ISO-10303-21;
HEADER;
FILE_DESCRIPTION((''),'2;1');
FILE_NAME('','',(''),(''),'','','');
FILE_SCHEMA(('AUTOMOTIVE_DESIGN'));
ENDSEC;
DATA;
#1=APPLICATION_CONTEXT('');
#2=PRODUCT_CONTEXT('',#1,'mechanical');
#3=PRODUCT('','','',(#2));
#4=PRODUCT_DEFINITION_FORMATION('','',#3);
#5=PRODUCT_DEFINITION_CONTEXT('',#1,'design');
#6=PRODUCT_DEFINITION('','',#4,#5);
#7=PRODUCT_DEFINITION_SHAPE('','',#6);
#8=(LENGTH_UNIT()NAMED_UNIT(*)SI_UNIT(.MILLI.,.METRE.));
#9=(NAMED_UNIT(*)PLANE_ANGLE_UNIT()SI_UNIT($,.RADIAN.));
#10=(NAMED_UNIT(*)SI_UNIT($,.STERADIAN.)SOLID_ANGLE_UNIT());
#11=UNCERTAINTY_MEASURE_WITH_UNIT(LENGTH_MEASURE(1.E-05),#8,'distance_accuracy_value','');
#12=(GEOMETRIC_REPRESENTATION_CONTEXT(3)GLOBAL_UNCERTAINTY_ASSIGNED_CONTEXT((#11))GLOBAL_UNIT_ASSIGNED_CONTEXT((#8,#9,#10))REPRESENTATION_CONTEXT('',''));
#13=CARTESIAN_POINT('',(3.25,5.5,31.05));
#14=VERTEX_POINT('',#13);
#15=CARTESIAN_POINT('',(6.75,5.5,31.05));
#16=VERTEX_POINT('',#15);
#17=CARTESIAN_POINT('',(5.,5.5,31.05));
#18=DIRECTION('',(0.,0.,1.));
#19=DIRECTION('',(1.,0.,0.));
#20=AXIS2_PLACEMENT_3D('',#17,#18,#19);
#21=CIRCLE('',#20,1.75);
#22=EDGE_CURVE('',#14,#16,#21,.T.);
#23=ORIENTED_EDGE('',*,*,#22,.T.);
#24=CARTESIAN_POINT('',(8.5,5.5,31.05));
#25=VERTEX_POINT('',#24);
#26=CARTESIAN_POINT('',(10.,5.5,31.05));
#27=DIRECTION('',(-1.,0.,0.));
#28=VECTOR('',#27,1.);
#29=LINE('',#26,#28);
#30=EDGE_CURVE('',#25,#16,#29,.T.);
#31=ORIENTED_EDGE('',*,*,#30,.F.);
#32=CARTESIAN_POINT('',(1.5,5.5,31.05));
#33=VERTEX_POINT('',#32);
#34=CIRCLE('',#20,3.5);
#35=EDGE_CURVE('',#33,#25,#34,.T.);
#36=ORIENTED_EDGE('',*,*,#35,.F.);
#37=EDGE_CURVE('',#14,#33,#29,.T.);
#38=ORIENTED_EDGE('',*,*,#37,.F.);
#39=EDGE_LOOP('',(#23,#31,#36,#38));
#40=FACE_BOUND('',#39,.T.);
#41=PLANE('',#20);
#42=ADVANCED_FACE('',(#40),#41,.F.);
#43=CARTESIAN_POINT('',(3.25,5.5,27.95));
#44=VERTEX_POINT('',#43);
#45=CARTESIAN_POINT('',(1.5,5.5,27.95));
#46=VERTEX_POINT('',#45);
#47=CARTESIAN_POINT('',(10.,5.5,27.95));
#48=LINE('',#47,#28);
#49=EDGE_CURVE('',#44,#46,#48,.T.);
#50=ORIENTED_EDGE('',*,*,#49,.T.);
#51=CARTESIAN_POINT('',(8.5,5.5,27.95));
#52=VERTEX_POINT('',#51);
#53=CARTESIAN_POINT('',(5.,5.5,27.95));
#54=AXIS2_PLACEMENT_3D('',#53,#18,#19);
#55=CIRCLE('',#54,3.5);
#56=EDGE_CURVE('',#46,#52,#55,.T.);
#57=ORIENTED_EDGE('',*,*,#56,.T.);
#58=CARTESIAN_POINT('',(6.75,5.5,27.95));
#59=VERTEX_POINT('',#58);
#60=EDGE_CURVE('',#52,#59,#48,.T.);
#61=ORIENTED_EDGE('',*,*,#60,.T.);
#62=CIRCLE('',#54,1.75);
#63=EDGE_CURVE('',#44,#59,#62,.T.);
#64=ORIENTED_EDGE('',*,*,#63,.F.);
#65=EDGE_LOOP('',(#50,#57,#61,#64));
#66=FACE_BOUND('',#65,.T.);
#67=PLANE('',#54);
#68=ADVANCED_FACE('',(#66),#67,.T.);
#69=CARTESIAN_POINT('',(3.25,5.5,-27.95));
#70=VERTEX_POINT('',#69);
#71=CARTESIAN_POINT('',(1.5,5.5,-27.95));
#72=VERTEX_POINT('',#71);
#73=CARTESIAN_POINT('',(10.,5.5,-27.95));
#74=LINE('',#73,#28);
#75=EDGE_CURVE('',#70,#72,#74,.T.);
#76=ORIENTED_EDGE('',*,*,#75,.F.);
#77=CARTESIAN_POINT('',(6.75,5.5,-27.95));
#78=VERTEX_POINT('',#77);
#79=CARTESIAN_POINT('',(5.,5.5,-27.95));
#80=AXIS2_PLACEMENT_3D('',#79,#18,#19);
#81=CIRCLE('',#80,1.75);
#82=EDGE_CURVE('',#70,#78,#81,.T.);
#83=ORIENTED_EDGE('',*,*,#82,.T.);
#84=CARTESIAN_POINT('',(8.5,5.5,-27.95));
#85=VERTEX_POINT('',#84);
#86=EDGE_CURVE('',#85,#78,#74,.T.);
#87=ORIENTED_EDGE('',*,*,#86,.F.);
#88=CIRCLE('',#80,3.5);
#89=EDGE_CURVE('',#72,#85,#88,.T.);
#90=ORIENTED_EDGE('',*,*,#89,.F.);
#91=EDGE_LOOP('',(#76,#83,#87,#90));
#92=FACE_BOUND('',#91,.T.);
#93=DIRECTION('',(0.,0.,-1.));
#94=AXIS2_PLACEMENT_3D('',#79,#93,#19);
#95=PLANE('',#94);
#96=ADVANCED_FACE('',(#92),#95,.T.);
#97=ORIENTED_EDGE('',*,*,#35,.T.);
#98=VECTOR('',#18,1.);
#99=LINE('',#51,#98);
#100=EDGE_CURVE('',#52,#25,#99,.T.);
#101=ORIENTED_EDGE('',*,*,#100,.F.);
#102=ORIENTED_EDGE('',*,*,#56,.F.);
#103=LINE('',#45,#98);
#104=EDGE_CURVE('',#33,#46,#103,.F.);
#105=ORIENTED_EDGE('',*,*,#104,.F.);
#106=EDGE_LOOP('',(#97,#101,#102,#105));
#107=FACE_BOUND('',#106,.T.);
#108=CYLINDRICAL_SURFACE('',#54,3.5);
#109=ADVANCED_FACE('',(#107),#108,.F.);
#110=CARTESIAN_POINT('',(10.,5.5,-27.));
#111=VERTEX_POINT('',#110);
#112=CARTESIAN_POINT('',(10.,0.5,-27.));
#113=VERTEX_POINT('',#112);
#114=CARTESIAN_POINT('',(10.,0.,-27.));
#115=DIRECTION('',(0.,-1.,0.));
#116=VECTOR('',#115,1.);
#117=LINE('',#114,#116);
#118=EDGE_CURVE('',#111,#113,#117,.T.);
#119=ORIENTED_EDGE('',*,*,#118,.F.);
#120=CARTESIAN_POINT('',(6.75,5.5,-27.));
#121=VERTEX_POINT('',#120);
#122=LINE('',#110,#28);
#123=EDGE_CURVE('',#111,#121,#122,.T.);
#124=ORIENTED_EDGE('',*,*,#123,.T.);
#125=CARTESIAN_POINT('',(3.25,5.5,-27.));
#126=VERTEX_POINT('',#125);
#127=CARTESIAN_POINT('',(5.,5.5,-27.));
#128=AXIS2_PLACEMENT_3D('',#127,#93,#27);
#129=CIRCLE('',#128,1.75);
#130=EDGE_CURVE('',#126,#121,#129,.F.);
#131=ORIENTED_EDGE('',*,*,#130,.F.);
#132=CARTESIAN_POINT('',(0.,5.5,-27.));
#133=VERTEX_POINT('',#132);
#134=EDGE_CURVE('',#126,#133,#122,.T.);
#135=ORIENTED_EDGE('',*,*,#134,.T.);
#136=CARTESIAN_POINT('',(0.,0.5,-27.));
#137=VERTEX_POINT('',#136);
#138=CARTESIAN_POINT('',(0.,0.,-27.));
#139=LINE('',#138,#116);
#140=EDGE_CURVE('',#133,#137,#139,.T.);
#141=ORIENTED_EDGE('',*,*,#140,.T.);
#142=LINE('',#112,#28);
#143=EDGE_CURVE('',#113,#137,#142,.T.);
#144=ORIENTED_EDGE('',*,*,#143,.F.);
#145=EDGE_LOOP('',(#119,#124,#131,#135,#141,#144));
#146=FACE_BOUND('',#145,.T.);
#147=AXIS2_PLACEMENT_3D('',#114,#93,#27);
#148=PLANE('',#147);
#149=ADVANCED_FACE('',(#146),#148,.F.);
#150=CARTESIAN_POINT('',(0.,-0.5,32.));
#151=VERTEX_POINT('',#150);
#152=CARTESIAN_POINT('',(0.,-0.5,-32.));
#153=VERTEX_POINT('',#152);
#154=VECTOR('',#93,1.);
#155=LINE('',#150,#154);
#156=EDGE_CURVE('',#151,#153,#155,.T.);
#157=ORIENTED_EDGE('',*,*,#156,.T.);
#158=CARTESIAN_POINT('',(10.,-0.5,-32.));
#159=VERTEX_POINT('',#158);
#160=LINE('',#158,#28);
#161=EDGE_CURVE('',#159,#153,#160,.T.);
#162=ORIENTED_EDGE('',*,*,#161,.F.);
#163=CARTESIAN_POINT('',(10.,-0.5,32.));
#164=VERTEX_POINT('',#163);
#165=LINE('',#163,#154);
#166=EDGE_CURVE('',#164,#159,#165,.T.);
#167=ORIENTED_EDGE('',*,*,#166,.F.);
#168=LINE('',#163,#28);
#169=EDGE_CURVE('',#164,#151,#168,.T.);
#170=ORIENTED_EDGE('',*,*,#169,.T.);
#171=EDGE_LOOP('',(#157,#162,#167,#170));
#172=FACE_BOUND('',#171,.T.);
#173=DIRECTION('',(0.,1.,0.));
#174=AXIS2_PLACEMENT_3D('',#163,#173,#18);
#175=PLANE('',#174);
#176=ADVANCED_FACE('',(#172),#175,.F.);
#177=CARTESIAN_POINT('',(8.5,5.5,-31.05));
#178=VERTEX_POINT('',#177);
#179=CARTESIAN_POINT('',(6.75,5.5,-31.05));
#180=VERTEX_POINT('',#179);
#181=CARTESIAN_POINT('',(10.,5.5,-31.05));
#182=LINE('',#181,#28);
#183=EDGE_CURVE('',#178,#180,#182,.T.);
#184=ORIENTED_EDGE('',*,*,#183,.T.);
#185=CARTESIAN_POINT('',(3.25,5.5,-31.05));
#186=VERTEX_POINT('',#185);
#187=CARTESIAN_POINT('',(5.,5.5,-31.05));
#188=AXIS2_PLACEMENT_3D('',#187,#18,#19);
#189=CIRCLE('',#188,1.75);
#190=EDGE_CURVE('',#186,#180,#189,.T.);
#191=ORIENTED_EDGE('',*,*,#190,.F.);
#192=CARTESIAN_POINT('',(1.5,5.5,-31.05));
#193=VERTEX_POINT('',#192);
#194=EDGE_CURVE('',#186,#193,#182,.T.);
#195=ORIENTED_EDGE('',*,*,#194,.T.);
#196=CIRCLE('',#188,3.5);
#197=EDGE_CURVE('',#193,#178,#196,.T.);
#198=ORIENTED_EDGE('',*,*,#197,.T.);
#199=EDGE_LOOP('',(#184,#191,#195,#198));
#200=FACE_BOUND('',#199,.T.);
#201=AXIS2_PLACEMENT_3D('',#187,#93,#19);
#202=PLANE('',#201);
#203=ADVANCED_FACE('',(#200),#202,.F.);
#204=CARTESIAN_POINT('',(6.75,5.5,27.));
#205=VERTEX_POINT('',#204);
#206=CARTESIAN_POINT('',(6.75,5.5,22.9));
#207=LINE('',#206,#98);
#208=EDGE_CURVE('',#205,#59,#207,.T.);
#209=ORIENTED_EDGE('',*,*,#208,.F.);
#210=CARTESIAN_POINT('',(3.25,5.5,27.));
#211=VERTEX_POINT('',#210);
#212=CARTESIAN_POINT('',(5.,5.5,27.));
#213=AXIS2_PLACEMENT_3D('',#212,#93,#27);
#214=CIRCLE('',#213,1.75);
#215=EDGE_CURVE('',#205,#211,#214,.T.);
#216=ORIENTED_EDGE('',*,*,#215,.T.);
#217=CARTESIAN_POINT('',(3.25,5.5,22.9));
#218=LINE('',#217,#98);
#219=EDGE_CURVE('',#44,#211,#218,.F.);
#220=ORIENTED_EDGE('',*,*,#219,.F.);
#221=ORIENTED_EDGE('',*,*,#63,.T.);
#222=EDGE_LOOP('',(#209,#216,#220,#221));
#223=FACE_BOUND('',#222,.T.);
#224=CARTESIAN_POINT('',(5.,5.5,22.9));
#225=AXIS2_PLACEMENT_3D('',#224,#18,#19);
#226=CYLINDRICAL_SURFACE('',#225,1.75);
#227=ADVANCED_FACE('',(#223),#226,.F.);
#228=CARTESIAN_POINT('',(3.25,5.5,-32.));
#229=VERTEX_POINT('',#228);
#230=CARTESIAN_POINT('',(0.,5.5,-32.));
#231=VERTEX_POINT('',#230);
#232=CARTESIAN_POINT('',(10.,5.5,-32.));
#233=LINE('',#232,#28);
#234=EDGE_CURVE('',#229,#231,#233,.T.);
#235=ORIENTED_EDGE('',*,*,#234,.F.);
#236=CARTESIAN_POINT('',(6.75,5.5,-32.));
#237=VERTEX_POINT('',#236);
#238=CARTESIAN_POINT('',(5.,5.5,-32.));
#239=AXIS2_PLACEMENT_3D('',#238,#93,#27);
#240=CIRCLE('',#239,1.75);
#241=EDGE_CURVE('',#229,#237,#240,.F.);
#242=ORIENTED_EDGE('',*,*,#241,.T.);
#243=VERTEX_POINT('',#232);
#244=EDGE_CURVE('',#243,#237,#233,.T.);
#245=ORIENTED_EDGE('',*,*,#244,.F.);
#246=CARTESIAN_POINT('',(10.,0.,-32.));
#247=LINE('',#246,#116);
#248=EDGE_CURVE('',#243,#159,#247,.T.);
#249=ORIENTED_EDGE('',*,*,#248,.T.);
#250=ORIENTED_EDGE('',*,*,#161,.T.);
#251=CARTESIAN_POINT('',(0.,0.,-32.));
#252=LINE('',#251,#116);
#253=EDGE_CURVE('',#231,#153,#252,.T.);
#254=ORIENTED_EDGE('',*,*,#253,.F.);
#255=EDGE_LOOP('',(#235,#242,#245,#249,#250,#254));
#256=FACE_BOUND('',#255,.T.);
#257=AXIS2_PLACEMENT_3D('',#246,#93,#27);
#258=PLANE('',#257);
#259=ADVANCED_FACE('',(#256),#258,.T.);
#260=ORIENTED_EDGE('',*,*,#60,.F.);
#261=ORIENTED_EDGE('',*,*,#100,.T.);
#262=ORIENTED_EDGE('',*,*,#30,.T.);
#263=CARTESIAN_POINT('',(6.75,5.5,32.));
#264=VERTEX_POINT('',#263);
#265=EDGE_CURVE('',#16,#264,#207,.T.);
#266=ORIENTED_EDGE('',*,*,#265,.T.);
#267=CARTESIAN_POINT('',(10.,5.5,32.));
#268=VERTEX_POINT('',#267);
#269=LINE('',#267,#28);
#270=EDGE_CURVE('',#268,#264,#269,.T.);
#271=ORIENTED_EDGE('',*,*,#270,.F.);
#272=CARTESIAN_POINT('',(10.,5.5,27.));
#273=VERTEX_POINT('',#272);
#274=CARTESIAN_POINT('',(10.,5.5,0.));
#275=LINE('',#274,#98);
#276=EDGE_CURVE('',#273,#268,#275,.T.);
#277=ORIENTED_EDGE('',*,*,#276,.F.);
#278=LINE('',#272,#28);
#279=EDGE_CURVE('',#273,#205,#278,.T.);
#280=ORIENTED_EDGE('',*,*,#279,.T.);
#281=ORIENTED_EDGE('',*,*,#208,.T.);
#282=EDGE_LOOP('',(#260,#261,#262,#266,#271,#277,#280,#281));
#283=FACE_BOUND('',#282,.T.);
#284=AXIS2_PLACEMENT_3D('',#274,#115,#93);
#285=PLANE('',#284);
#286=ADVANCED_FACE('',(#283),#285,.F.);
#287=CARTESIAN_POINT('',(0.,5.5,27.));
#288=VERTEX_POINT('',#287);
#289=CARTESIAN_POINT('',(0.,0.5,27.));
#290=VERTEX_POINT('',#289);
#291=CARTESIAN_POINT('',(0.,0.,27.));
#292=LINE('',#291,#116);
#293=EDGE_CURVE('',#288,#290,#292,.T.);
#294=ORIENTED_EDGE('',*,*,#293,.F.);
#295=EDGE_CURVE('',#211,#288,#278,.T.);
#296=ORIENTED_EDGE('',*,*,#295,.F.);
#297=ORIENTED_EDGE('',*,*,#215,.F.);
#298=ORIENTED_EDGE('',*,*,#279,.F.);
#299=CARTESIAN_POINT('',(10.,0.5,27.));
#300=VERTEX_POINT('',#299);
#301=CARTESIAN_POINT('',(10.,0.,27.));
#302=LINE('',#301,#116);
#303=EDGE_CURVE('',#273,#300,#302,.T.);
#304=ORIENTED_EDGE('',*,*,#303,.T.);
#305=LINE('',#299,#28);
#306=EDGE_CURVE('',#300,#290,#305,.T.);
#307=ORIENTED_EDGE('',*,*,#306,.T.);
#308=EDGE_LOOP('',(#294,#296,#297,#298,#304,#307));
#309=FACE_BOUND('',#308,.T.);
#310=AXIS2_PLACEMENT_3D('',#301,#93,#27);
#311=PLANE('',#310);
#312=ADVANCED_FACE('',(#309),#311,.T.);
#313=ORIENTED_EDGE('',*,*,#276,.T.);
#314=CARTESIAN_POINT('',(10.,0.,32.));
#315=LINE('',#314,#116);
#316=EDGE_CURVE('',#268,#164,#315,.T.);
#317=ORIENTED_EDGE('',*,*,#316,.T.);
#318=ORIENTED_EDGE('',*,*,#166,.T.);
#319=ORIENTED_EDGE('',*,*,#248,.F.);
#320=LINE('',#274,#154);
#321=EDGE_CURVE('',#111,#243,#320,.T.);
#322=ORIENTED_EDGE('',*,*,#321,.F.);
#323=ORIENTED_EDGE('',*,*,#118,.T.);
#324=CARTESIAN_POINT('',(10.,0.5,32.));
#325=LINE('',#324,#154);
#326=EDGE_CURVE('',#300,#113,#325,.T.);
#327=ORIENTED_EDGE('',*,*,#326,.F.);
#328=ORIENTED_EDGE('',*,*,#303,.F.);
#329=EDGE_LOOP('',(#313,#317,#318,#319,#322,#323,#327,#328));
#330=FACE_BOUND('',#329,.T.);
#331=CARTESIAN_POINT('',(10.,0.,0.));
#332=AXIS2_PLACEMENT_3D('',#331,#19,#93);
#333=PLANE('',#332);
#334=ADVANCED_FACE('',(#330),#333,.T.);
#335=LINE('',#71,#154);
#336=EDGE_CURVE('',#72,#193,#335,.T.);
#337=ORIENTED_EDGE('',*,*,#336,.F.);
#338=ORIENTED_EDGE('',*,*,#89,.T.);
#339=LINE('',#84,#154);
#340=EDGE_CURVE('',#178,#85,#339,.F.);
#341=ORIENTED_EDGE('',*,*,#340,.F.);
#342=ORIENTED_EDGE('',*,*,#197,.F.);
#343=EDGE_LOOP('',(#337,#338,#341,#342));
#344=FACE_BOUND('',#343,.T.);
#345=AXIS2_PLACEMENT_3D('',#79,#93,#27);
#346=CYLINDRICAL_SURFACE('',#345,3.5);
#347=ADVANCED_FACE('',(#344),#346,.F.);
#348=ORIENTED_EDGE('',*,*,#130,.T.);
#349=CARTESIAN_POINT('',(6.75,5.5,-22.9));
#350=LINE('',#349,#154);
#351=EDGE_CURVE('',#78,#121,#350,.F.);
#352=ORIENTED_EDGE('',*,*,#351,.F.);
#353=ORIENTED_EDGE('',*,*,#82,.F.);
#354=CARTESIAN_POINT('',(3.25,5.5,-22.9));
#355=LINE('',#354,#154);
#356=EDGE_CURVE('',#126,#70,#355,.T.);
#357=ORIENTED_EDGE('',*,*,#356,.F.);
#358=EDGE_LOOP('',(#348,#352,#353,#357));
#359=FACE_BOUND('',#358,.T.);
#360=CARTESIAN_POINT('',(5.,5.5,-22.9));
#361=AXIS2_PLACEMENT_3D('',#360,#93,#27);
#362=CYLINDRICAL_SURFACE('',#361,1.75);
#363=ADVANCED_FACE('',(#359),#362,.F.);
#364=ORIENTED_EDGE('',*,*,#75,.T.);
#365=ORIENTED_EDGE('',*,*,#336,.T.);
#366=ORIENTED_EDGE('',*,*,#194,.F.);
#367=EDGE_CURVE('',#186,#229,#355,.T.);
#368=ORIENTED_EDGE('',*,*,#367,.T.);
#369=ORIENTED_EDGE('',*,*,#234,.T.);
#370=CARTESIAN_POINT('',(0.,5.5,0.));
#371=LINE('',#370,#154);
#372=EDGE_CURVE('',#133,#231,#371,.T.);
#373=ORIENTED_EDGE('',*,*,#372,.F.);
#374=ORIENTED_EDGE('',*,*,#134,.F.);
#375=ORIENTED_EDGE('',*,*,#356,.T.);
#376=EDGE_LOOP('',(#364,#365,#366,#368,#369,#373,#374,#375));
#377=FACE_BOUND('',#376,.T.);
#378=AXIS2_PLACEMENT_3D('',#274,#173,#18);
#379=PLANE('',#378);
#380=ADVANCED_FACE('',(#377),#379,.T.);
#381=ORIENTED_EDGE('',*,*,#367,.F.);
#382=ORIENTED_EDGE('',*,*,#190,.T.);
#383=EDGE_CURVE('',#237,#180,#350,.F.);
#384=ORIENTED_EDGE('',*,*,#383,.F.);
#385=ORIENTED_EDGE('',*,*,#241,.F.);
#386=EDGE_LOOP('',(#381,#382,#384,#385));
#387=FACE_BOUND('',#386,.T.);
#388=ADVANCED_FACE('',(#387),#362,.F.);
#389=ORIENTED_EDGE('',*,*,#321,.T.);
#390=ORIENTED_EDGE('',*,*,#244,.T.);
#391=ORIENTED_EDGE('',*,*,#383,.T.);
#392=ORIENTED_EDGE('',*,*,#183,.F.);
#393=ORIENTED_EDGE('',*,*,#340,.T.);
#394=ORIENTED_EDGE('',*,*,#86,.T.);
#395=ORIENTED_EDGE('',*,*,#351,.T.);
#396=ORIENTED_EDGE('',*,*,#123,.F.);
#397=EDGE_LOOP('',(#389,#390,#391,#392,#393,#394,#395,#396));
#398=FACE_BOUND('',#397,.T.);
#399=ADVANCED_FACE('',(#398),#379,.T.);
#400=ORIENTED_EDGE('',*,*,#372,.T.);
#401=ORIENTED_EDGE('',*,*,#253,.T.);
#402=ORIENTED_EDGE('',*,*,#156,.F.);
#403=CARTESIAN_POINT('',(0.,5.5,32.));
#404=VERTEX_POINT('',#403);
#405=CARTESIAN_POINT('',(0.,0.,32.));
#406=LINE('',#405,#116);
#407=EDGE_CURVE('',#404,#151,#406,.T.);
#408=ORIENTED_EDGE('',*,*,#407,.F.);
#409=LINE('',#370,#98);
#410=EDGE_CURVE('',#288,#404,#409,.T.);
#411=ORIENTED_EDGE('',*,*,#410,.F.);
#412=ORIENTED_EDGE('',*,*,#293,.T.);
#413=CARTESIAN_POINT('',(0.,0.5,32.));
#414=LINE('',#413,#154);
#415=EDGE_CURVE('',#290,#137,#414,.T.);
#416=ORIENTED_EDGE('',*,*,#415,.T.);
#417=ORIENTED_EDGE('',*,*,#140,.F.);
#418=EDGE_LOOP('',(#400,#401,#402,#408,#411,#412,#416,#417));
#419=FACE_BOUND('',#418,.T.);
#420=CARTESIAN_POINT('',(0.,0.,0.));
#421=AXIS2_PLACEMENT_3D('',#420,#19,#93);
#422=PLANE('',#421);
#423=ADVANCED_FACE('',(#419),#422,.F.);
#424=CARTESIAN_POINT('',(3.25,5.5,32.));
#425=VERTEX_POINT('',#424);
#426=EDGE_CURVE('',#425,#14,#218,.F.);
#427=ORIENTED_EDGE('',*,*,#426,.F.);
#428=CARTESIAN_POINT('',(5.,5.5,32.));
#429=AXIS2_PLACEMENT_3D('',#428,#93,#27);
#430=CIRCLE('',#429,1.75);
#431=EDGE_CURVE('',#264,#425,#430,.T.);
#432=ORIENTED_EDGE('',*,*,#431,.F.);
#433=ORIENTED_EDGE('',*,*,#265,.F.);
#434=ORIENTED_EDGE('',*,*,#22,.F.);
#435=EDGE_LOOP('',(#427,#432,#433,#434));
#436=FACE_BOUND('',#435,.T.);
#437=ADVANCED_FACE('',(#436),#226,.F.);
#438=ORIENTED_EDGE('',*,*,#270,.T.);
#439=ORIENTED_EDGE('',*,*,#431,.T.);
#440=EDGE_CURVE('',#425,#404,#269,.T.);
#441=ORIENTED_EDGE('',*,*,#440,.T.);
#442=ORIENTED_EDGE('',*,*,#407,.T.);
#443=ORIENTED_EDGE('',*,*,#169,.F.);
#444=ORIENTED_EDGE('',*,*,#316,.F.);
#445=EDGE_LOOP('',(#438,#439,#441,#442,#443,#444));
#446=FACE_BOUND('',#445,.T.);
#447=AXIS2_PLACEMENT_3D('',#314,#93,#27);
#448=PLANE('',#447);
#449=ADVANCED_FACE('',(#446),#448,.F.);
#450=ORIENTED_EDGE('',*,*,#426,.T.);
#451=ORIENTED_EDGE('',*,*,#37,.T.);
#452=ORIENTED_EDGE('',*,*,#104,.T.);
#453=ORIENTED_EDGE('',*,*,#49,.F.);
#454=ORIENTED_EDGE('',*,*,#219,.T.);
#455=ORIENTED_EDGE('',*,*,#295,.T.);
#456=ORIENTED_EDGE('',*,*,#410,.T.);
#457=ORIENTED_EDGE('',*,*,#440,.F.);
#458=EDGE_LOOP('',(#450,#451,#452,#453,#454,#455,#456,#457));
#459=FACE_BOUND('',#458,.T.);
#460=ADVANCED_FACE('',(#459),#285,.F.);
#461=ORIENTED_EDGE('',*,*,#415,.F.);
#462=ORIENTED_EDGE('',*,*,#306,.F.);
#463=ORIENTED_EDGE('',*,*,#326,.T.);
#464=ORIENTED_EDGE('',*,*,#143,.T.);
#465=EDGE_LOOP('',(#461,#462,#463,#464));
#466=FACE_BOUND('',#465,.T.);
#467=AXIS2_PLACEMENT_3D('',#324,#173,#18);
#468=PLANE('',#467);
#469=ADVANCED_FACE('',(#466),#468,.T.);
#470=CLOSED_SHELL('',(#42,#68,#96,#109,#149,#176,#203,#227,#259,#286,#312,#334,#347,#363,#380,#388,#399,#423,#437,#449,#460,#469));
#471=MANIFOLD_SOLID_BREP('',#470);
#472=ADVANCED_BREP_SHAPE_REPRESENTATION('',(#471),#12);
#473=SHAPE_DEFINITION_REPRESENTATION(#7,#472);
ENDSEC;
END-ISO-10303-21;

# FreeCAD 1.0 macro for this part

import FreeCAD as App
import Part
import Sketcher
Q = App.Units.Quantity


def add_polygon(sketch, points):
    """Adds a closed chain of lines whose ends are joined by coincident constraints."""
    first, n = sketch.GeometryCount, len(points)
    for a, b in zip(points, points[1:] + points[:1]):
        sketch.addGeometry(Part.LineSegment(App.Vector(*a, 0), App.Vector(*b, 0)), False)
    for i in range(n):
        sketch.addConstraint(Sketcher.Constraint("Coincident", first + i, 2, first + (i + 1) % n, 1))

doc = App.newDocument("Part")
body = doc.addObject("PartDesign::Body", "Body")

sketch1 = doc.addObject("Sketcher::SketchObject", "Sketch")
body.addObject(sketch1)
sketch1.AttachmentSupport = (doc.YZ_Plane, [""])
sketch1.MapMode = "FlatFace"
add_polygon(sketch1, [(6, 32), (0, 32), (0, -32), (6, -32), (6, -27), (0, -27), (0, 27), (6, 27)])
sketch1.addConstraint(Sketcher.Constraint("Horizontal", 0))
sketch1.addConstraint(Sketcher.Constraint("Vertical", 1))
sketch1.addConstraint(Sketcher.Constraint("Horizontal", 2))
sketch1.addConstraint(Sketcher.Constraint("Vertical", 3))
sketch1.addConstraint(Sketcher.Constraint("Horizontal", 4))
sketch1.addConstraint(Sketcher.Constraint("Vertical", 5))
sketch1.addConstraint(Sketcher.Constraint("Horizontal", 6))
sketch1.addConstraint(Sketcher.Constraint("Vertical", 7))
sketch1.addConstraint(Sketcher.Constraint("Symmetric", 3, 2, 6, 2, -1))
sketch1.addConstraint(Sketcher.Constraint("Equal", 6, 3))
sketch1.addConstraint(Sketcher.Constraint("Equal", 3, 7))
sketch1.addConstraint(Sketcher.Constraint("DistanceX", 0, 2, 0, 1, Q("6 mm")))
sketch1.addConstraint(Sketcher.Constraint("DistanceX", 4, 2, 4, 1, Q("5 mm")))
sketch1.addConstraint(Sketcher.Constraint("DistanceY", 1, 2, 1, 1, Q("64 mm")))
sketch1.addConstraint(Sketcher.Constraint("DistanceX", 0, 2, -1, 1, Q("0.5 mm")))
pad1 = doc.addObject("PartDesign::Pad", "Pad")
body.addObject(pad1)
pad1.Profile = sketch1
pad1.Length = 10

sketch2 = doc.addObject("Sketcher::SketchObject", "Sketch001")
body.addObject(sketch2)
sketch2.AttachmentSupport = (doc.XY_Plane, [""])
sketch2.MapMode = "FlatFace"
sketch2.AttachmentOffset = App.Placement(App.Vector(0, 0, 29.5), App.Rotation())
sketch2.addGeometry(Part.Circle(App.Vector(5, 5.5, 0), App.Vector(0, 0, 1), 3.5), False)
sketch2.addGeometry(Part.Circle(App.Vector(5, 5.5, 0), App.Vector(0, 0, 1), 1.8), False)
sketch2.addConstraint(Sketcher.Constraint("Coincident", 1, 3, 0, 3))
sketch2.addConstraint(Sketcher.Constraint("Diameter", 0, Q("7 mm")))
sketch2.addConstraint(Sketcher.Constraint("Diameter", 1, Q("3.5 mm")))
sketch2.addConstraint(Sketcher.Constraint("DistanceX", -1, 1, 0, 3, Q("5 mm")))
sketch2.addConstraint(Sketcher.Constraint("DistanceY", -1, 1, 0, 3, Q("5.5 mm")))
pocket1 = doc.addObject("PartDesign::Pocket", "Pocket")
body.addObject(pocket1)
pocket1.Profile = sketch2
pocket1.Length = 3.1
pocket1.Midplane = True

sketch3 = doc.addObject("Sketcher::SketchObject", "Sketch002")
body.addObject(sketch3)
sketch3.AttachmentSupport = (doc.XY_Plane, [""])
sketch3.MapMode = "FlatFace"
sketch3.AttachmentOffset = App.Placement(App.Vector(0, 0, 29.5), App.Rotation())
sketch3.addGeometry(Part.Circle(App.Vector(5, 5.5, 0), App.Vector(0, 0, 1), 1.8), False)
sketch3.addConstraint(Sketcher.Constraint("Diameter", 0, Q("3.5 mm")))
sketch3.addConstraint(Sketcher.Constraint("DistanceX", -1, 1, 0, 3, Q("5 mm")))
sketch3.addConstraint(Sketcher.Constraint("DistanceY", -1, 1, 0, 3, Q("5.5 mm")))
pocket2 = doc.addObject("PartDesign::Pocket", "Pocket001")
body.addObject(pocket2)
pocket2.Profile = sketch3
pocket2.Length = 13.2
pocket2.Midplane = True
doc.recompute()

mirrored = doc.addObject("PartDesign::Mirrored", "Mirrored")
body.addObject(mirrored)
mirrored.Originals = [pocket1]
mirrored.MirrorPlane = (doc.XY_Plane, [""])
body.Tip = mirrored
doc.recompute()

mirrored2 = doc.addObject("PartDesign::Mirrored", "Mirrored001")
body.addObject(mirrored2)
mirrored2.Originals = [pocket2]
mirrored2.MirrorPlane = (doc.XY_Plane, [""])
body.Tip = mirrored2

doc.recompute()
